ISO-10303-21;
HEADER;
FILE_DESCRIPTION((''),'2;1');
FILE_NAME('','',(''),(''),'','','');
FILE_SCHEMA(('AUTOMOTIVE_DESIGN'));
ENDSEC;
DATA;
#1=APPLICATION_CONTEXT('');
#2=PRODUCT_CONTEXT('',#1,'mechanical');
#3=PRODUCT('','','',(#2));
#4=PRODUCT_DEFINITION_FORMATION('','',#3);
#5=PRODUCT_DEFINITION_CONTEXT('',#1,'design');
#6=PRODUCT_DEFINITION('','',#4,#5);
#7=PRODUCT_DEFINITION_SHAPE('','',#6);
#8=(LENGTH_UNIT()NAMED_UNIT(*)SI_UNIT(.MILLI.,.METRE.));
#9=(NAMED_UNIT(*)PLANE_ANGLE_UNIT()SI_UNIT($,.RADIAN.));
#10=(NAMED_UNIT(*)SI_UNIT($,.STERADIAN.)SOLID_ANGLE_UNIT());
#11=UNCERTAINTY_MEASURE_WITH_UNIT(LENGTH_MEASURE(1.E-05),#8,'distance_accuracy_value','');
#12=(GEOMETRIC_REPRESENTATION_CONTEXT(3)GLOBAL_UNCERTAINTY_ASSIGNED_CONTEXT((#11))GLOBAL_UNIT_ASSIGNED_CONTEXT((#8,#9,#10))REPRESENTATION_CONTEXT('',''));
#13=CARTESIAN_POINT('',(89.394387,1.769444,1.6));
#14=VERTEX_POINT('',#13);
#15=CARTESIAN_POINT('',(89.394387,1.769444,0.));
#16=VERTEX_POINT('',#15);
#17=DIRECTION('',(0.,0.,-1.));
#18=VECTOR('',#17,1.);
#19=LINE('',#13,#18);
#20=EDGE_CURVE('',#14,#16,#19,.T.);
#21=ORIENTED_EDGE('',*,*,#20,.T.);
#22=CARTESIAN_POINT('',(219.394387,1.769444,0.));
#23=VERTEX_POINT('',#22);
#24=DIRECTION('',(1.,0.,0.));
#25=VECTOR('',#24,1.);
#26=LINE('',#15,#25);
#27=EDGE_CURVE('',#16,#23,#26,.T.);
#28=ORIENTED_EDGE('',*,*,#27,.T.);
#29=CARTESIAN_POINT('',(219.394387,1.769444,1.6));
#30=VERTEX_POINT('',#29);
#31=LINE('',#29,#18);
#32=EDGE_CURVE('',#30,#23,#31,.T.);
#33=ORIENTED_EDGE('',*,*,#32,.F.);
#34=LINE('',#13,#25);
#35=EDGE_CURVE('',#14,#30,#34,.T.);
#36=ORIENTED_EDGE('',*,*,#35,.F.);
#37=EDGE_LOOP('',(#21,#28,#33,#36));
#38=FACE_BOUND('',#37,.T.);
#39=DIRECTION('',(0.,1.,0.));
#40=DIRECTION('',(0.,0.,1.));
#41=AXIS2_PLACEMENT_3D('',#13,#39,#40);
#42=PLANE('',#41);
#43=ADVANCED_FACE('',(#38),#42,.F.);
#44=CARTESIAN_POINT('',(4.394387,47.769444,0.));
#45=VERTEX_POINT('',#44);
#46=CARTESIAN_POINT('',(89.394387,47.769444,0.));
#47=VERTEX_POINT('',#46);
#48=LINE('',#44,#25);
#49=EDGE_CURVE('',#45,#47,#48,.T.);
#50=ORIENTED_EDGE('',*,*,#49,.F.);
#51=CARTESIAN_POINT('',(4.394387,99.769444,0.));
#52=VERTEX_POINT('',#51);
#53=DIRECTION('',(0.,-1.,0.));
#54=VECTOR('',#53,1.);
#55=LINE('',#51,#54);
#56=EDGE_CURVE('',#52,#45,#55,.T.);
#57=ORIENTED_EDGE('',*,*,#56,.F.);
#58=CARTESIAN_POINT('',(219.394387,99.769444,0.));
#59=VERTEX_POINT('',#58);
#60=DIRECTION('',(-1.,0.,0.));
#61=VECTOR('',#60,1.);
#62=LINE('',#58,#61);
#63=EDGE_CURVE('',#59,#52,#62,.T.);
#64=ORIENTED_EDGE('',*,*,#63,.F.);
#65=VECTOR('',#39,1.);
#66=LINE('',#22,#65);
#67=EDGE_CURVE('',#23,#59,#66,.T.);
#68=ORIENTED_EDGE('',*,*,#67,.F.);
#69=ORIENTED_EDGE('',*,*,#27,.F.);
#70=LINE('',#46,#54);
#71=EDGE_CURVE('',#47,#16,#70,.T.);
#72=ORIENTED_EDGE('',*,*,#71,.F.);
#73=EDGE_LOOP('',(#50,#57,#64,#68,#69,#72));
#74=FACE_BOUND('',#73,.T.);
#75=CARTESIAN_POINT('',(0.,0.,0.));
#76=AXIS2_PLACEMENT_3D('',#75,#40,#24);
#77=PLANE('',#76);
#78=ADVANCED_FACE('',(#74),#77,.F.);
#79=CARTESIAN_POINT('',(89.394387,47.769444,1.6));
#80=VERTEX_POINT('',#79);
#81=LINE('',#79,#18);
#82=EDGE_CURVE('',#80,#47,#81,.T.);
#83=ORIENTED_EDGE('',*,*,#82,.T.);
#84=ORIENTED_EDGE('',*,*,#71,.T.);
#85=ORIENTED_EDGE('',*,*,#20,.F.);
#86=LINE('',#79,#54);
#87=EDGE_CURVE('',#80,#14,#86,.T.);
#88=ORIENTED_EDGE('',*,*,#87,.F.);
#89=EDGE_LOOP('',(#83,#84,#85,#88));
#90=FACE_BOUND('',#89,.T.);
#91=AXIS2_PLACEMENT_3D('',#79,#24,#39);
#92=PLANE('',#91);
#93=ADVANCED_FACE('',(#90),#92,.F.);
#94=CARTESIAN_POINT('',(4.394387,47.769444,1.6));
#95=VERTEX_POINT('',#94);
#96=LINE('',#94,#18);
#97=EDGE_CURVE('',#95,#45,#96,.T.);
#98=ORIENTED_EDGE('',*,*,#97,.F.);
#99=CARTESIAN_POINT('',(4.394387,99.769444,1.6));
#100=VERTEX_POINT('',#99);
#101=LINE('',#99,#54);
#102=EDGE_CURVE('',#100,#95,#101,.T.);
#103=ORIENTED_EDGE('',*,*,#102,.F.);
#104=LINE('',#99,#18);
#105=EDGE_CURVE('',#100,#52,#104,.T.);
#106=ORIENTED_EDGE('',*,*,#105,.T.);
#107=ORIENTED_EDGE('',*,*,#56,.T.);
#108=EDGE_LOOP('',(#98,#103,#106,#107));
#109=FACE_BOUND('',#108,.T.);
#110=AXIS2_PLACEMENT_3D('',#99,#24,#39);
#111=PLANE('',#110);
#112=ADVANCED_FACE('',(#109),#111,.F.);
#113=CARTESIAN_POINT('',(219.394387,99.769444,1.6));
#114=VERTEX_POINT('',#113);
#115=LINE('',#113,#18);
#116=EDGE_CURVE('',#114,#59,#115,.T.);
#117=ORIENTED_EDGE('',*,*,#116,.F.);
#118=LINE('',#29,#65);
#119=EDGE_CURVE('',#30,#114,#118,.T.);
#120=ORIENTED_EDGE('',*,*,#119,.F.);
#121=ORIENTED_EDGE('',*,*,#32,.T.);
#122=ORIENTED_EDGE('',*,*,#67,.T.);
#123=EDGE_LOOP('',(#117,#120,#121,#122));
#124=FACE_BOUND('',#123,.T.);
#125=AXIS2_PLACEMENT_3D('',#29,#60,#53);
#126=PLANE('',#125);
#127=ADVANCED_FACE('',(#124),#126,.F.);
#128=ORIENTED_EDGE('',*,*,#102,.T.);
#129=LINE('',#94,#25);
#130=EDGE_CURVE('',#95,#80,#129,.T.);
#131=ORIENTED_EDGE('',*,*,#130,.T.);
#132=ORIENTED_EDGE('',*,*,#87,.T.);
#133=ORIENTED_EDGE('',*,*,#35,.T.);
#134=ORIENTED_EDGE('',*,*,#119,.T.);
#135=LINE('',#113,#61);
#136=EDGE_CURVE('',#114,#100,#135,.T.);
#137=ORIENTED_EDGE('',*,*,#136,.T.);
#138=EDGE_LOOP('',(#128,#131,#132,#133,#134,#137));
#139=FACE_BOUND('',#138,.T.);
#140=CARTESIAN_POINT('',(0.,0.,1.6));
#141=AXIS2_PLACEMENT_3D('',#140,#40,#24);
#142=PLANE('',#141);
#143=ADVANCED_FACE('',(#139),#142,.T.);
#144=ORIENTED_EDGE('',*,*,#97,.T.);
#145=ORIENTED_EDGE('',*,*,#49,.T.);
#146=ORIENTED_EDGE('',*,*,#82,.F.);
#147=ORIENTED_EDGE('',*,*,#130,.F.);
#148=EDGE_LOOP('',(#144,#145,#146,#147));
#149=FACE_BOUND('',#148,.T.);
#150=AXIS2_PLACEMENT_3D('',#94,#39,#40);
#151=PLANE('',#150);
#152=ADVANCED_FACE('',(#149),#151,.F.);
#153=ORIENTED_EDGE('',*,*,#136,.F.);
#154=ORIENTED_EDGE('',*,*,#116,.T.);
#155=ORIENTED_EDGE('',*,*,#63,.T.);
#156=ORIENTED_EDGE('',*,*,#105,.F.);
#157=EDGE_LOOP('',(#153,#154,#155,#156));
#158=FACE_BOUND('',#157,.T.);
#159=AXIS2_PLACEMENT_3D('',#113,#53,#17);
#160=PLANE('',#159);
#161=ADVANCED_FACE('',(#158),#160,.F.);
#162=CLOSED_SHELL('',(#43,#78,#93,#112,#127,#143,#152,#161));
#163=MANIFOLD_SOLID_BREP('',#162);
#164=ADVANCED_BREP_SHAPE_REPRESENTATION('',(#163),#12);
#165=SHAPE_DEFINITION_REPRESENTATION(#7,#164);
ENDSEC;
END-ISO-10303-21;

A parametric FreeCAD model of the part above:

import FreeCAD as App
import Part
import Sketcher

V = App.Vector


def add_polygon(sketch, points):
    """Adds a closed chain of lines whose ends are joined by coincident constraints."""
    first, n = sketch.GeometryCount, len(points)
    for a, b in zip(points, points[1:] + points[:1]):
        sketch.addGeometry(Part.LineSegment(App.Vector(*a, 0), App.Vector(*b, 0)), False)
    for i in range(n):
        sketch.addConstraint(Sketcher.Constraint("Coincident", first + i, 2, first + (i + 1) % n, 1))

doc = App.newDocument("Part")
params = doc.addObject("Spreadsheet::Sheet", "Params")
for row, (alias, value) in enumerate([
    ("sketch1_width", "85 mm"),
    ("sketch1_width2", "130 mm"),
    ("sketch1_height", "46 mm"),
    ("sketch1_height2", "98 mm"),
    ("pad1_length", "1.6 mm"),
], start=1):
    params.set(f"A{row}", alias)
    params.set(f"B{row}", "=" + value)
    params.setAlias(f"B{row}", alias)

body = doc.addObject("PartDesign::Body", "Body")

sketch1 = body.newObject("Sketcher::SketchObject", "Sketch")
sketch1.AttachmentSupport = (doc.getObject("XY_Plane"), [""])
sketch1.MapMode = "FlatFace"
add_polygon(sketch1, [(4.394387, 47.769444), (89.394387, 47.769444), (89.394387, 1.769444), (219.394387, 1.769444), (219.394387, 99.769444), (4.394387, 99.769444)])
sketch1.addConstraint([
    Sketcher.Constraint("Horizontal", 0),
    Sketcher.Constraint("Vertical", 1),
    Sketcher.Constraint("Horizontal", 2),
    Sketcher.Constraint("Vertical", 3),
    Sketcher.Constraint("Horizontal", 4),
    Sketcher.Constraint("Vertical", 5),
    Sketcher.Constraint("DistanceX", 0, 1, 0, 2, 85.0),
    Sketcher.Constraint("DistanceX", 2, 1, 2, 2, 130.0),
    Sketcher.Constraint("DistanceY", 1, 2, 1, 1, 46.0),
    Sketcher.Constraint("DistanceY", 3, 1, 3, 2, 98.0),
    Sketcher.Constraint("DistanceX", -1, 1, 0, 2, 89.394387),
    Sketcher.Constraint("DistanceY", -1, 1, 0, 2, 47.769444),
])
sketch1.setExpression("Constraints[12]", "Params.sketch1_width")
sketch1.setExpression("Constraints[13]", "Params.sketch1_width2")
sketch1.setExpression("Constraints[14]", "Params.sketch1_height")
sketch1.setExpression("Constraints[15]", "Params.sketch1_height2")
pad1 = body.newObject("PartDesign::Pad", "Pad")
pad1.Profile = sketch1
pad1.setExpression("Length", "Params.pad1_length")

doc.recompute()
